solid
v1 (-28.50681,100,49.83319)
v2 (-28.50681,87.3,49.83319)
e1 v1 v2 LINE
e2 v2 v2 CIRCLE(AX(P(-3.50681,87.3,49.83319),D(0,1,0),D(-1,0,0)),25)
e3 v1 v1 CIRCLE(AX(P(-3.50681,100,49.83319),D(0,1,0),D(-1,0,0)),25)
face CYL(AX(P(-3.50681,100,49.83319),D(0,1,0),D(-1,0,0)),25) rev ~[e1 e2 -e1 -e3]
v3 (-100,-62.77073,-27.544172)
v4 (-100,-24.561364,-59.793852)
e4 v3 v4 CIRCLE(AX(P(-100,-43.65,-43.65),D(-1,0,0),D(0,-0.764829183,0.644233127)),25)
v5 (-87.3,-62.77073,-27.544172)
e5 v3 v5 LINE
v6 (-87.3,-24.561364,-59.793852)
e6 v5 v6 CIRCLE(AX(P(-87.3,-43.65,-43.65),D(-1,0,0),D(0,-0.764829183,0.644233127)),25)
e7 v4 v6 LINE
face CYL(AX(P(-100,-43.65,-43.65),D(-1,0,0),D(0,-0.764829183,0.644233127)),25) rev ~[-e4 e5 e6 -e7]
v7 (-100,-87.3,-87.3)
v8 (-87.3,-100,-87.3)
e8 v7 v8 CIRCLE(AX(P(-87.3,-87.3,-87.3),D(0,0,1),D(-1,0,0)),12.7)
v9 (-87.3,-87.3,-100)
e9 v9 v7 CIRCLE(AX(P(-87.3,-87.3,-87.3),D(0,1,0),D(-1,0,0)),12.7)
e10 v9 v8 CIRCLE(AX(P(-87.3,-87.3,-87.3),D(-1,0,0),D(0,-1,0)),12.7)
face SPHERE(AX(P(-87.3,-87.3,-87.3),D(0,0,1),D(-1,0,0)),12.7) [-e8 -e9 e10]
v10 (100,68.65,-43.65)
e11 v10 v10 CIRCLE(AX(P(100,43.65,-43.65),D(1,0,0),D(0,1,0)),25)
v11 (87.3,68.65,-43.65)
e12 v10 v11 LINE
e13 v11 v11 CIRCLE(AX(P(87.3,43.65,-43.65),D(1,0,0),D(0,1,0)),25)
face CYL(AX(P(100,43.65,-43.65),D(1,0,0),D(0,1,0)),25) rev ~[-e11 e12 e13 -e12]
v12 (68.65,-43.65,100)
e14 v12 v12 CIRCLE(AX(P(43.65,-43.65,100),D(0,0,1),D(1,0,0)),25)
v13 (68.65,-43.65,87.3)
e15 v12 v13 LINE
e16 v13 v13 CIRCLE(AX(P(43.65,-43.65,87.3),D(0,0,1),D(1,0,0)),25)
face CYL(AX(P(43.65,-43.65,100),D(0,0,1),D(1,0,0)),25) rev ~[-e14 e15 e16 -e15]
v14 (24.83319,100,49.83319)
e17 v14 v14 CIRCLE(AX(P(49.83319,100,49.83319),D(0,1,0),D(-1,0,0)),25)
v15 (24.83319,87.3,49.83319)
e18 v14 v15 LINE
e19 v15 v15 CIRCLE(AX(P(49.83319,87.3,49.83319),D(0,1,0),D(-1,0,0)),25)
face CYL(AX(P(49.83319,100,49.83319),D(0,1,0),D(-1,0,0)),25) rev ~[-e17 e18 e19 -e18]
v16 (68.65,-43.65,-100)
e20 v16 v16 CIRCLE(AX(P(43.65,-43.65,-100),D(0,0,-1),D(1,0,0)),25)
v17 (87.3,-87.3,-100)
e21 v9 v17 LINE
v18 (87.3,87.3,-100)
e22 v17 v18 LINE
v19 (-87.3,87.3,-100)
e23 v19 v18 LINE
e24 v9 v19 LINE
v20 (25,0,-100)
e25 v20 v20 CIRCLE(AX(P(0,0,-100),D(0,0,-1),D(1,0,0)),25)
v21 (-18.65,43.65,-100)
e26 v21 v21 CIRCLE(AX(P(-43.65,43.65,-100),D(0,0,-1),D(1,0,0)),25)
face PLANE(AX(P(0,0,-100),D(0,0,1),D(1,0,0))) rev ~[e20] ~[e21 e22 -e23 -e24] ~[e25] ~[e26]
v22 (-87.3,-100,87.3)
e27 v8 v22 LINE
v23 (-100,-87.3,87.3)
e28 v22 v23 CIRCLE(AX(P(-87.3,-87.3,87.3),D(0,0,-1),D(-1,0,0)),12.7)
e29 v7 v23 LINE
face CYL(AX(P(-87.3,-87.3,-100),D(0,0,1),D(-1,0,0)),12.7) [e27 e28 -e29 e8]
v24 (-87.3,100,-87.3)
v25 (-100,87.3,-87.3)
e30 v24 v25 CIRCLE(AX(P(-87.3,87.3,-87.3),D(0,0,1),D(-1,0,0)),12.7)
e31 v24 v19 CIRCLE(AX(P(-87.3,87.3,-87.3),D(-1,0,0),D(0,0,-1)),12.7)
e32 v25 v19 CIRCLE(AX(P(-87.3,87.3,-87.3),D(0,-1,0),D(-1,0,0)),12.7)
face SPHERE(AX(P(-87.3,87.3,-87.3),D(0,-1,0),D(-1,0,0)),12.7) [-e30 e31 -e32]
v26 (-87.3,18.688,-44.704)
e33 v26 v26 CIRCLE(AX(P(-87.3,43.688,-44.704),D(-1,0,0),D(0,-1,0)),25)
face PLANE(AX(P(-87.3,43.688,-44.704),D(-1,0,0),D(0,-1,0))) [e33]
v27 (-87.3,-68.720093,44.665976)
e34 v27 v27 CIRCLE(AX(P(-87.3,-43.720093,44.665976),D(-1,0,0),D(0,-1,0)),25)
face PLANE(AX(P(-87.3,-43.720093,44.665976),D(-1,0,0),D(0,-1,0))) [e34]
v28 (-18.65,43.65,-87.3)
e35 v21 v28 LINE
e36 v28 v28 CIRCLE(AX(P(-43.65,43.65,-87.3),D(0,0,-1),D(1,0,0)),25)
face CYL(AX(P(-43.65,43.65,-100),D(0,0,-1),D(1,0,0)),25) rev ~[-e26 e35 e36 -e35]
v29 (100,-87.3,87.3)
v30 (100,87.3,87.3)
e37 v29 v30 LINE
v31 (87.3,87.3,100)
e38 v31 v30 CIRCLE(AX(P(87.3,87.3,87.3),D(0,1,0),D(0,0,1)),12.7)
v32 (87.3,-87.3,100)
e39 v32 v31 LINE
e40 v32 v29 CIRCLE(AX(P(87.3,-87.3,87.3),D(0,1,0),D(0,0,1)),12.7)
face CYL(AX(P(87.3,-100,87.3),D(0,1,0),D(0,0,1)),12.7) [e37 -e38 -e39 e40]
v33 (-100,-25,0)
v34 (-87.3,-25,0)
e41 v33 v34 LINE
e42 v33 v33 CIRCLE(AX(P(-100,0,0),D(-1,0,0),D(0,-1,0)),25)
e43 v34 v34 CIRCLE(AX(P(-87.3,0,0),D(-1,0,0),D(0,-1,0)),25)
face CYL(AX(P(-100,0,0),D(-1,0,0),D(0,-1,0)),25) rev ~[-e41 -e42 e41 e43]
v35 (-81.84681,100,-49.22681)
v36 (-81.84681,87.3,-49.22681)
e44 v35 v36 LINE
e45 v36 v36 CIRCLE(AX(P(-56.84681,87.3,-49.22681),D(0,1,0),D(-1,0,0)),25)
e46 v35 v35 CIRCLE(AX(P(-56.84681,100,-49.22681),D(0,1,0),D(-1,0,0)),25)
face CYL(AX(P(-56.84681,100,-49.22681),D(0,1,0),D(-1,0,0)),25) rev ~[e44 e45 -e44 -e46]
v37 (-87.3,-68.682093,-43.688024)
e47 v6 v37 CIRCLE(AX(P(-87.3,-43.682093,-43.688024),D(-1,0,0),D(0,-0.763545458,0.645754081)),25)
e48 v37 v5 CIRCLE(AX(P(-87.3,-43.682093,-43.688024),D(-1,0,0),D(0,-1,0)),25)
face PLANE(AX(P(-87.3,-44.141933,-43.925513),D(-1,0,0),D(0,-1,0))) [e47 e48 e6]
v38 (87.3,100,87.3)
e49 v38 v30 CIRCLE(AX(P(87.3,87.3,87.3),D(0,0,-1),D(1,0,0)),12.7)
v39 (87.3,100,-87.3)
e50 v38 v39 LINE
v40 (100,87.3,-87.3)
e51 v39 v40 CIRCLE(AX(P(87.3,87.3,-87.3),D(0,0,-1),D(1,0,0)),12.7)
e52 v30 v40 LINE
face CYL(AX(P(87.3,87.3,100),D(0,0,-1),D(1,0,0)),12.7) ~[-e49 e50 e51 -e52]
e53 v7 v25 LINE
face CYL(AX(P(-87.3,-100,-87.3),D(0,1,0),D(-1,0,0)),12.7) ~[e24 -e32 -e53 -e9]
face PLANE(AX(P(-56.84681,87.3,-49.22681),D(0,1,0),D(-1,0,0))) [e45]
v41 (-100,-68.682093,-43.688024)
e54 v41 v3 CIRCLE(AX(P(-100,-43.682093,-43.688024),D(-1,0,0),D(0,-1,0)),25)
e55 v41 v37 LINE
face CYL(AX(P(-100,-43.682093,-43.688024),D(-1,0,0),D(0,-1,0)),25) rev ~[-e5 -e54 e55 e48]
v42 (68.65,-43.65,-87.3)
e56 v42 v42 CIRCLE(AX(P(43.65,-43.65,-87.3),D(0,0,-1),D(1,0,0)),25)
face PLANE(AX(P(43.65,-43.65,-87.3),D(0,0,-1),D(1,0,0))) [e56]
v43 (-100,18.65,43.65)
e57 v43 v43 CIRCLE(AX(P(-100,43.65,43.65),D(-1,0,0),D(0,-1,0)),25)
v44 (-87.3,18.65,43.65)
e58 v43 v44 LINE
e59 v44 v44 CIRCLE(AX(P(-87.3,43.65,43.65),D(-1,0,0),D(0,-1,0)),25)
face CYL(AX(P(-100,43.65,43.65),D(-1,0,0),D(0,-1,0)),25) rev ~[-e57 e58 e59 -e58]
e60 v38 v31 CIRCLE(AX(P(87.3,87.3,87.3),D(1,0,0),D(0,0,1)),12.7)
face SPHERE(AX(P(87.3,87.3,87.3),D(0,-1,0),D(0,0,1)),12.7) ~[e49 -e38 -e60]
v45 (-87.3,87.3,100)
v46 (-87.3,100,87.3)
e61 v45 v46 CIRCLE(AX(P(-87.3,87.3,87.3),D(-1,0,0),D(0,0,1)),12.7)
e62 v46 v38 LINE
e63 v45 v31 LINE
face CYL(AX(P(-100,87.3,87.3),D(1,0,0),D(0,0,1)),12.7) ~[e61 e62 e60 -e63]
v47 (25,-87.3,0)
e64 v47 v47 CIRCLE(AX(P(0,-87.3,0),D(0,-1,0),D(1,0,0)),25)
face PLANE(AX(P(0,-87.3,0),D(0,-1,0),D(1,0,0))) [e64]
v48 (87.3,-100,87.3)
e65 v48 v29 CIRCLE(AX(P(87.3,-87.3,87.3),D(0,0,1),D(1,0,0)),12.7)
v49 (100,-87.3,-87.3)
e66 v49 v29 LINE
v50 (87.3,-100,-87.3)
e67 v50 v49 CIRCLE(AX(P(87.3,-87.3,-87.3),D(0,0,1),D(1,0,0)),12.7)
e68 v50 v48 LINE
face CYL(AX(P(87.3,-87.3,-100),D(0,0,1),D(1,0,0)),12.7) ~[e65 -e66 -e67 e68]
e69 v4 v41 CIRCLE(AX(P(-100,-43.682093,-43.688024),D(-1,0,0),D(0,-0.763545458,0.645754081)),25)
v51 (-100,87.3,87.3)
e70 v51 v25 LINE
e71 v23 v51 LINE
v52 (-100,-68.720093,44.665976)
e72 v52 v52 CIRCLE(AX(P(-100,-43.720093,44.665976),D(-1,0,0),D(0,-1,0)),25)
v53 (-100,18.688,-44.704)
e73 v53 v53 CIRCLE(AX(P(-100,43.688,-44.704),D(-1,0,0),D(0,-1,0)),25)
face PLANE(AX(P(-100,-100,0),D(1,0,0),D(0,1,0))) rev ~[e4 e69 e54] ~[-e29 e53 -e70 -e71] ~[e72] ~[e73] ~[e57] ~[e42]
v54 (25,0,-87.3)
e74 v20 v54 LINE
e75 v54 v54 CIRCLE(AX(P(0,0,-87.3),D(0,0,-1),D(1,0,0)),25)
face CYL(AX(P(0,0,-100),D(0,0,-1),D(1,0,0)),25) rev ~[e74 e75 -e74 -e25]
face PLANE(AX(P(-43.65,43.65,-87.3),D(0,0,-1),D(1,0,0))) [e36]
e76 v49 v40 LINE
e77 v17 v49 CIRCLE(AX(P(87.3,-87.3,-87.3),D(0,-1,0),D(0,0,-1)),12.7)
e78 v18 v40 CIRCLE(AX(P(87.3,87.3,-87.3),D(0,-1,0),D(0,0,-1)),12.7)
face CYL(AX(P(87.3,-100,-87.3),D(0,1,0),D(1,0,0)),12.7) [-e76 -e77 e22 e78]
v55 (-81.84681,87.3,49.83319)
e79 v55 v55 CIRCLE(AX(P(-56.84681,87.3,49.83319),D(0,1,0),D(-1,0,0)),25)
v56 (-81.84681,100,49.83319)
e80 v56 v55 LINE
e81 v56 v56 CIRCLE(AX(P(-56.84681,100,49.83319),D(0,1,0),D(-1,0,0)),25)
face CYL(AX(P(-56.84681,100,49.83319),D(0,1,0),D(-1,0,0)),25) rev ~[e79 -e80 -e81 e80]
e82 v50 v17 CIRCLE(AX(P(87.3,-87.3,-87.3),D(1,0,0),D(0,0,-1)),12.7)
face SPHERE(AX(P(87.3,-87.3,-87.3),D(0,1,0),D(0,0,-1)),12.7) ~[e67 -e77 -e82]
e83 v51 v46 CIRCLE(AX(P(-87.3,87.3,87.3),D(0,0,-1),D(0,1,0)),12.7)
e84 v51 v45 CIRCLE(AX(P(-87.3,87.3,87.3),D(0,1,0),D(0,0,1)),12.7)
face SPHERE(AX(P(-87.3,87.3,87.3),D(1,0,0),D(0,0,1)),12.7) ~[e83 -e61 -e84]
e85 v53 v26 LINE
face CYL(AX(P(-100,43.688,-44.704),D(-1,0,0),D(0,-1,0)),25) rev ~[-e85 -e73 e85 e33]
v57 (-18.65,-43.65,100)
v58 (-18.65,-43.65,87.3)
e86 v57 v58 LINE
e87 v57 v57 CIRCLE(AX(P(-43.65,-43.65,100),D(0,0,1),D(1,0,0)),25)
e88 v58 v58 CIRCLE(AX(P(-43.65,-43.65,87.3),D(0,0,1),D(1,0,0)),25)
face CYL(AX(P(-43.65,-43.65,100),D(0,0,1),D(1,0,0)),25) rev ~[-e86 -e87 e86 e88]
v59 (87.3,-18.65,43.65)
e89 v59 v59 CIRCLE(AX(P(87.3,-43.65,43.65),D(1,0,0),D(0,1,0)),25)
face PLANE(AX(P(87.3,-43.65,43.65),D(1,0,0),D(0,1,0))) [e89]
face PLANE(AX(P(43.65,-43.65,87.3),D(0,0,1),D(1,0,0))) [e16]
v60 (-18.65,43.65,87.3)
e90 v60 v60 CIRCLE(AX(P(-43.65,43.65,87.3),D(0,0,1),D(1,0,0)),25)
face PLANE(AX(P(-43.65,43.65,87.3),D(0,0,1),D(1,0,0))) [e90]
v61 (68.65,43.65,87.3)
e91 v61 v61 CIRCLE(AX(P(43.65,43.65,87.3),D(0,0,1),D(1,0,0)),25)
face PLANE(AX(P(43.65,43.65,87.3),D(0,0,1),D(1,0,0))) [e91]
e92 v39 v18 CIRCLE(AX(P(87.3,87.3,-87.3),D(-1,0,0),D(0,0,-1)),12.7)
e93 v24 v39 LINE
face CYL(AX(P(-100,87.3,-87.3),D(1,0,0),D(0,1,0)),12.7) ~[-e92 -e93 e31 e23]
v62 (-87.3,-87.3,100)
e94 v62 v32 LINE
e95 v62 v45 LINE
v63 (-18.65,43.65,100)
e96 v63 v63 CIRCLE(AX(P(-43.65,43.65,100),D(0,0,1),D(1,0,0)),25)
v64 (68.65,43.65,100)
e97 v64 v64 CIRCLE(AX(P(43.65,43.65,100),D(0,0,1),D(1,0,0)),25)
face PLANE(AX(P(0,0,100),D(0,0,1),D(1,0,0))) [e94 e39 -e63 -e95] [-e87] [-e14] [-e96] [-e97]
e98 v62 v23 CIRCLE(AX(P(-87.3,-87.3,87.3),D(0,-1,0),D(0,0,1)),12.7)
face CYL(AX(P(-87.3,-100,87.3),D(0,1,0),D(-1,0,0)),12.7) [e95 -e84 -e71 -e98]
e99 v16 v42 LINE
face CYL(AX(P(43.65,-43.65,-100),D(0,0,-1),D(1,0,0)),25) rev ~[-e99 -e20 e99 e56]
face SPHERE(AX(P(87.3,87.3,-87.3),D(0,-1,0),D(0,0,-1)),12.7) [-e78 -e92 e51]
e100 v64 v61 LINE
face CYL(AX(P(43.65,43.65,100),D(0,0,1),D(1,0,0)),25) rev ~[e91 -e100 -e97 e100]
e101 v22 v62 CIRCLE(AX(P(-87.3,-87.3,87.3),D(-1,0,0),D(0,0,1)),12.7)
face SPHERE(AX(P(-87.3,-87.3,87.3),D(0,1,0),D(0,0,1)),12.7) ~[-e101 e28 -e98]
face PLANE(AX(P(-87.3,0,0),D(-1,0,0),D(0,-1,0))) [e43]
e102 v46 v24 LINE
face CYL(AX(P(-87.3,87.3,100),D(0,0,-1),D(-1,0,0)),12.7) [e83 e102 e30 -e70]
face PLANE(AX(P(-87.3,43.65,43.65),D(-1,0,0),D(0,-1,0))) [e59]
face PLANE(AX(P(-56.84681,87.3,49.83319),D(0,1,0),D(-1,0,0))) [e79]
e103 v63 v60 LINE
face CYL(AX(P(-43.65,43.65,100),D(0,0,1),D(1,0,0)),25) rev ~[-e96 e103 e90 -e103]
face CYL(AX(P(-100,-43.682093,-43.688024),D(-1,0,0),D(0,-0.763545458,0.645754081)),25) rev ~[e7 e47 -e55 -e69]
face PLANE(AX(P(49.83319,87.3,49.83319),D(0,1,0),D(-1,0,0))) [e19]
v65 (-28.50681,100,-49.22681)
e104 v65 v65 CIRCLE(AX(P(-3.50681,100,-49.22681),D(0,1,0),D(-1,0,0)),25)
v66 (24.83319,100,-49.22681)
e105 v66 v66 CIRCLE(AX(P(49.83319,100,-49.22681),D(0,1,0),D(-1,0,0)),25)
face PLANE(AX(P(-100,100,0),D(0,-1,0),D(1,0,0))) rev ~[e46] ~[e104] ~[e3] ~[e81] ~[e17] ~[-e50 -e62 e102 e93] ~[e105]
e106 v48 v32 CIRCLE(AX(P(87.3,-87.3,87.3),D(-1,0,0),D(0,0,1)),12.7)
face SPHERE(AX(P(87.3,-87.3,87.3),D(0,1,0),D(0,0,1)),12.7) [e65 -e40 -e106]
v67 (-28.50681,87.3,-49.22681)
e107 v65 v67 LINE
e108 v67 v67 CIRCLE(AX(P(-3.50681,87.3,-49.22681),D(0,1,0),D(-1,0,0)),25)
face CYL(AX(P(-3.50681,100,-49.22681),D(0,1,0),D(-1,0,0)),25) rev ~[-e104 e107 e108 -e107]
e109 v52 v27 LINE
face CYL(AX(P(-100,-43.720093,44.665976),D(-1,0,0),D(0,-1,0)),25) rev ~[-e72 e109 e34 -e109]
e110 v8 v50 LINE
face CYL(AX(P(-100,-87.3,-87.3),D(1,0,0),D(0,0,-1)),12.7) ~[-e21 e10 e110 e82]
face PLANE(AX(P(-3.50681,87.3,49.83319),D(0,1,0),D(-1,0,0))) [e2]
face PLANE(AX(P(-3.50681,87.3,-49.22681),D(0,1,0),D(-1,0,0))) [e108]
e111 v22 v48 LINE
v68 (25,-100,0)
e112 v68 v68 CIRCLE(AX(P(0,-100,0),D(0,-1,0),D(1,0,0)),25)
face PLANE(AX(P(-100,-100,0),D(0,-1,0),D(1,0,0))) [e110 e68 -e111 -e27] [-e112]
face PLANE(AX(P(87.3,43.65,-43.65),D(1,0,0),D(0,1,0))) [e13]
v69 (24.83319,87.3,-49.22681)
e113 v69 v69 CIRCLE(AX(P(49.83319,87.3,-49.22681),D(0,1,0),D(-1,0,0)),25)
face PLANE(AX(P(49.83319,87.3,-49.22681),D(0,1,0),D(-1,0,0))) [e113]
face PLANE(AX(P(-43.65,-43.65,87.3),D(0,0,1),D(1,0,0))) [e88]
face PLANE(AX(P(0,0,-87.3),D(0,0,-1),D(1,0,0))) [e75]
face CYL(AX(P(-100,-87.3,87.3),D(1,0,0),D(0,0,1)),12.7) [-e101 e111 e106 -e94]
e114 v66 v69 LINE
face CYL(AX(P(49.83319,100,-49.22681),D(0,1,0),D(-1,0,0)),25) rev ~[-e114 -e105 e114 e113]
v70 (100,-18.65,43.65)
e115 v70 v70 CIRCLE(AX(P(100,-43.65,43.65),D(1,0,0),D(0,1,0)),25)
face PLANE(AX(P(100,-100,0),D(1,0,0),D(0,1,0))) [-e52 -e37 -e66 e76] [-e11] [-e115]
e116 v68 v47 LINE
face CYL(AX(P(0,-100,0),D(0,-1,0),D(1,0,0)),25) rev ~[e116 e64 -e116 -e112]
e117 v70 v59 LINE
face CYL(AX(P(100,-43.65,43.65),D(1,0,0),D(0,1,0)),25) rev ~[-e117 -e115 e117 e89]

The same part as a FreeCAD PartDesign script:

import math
import FreeCAD as App
import Part
import Sketcher
from FreeCAD import Vector
Q = App.Units.Quantity


def add_polygon(sketch, points):
    """Adds a closed chain of lines whose ends are joined by coincident constraints."""
    first, n = sketch.GeometryCount, len(points)
    for a, b in zip(points, points[1:] + points[:1]):
        sketch.addGeometry(Part.LineSegment(App.Vector(*a, 0), App.Vector(*b, 0)), False)
    for i in range(n):
        sketch.addConstraint(Sketcher.Constraint("Coincident", first + i, 2, first + (i + 1) % n, 1))

doc = App.newDocument("Part")
body = doc.addObject("PartDesign::Body", "Body")

# Sketch on XY plane
sketch1 = body.newObject("Sketcher::SketchObject", "Sketch")
sketch1.AttachmentSupport = (doc.getObject("XY_Plane"), [""])
sketch1.MapMode = "FlatFace"
add_polygon(sketch1, [(-100, 100), (-100, -100), (100, -100), (100, 100)])  # lines 0-3
sketch1.addConstraint([
    Sketcher.Constraint("Vertical", 0),
    Sketcher.Constraint("Horizontal", 1),
    Sketcher.Constraint("Vertical", 2),
    Sketcher.Constraint("Horizontal", 3),
    Sketcher.Constraint("Symmetric", 0, 2, 2, 2, -1, 1),
    Sketcher.Constraint("Equal", 3, 0),
    Sketcher.Constraint("DistanceX", 1, 1, 1, 2, Q("200 mm")),
])
pad1 = body.newObject("PartDesign::Pad", "Pad")
pad1.Profile = sketch1
pad1.Type = "TwoLengths"
pad1.Length = 100
pad1.Length2 = 100
doc.recompute()

fillet = body.newObject("PartDesign::Fillet", "Fillet")
fillet.Base = (pad1, ["Edge1"])
fillet.UseAllEdges = True
fillet.Radius = 12.7

# Sketch on XZ plane
sketch2 = body.newObject("Sketcher::SketchObject", "Sketch001")
sketch2.AttachmentSupport = (doc.getObject("XZ_Plane"), [""])
sketch2.MapMode = "FlatFace"
sketch2.AttachmentOffset = App.Placement(Vector(0, 0, 100), App.Rotation())
sketch2.addGeometry(Part.Circle(Vector(0, 0, 0), Vector(0, 0, 1), 25), False)
sketch2.addConstraint([
    Sketcher.Constraint("Coincident", 0, 3, -1, 1),
    Sketcher.Constraint("Diameter", 0, Q("50 mm")),
])
pocket1 = body.newObject("PartDesign::Pocket", "Pocket")
pocket1.Profile = sketch2
pocket1.Length = 12.7

# Sketch on XZ plane
sketch3 = body.newObject("Sketcher::SketchObject", "Sketch002")
sketch3.AttachmentSupport = (doc.getObject("XZ_Plane"), [""])
sketch3.MapMode = "FlatFace"
sketch3.AttachmentOffset = App.Placement(Vector(0, 0, -100), App.Rotation())
sketch3.addGeometry([
    Part.Circle(Vector(50, 50, 0), Vector(0, 0, 1), 25),  # 0
    Part.Circle(Vector(-4, 50, 0), Vector(0, 0, 1), 25),  # 1
    Part.Circle(Vector(-57, 50, 0), Vector(0, 0, 1), 25),  # 2
    Part.Circle(Vector(50, -49, 0), Vector(0, 0, 1), 25),  # 3
    Part.Circle(Vector(-4, -49, 0), Vector(0, 0, 1), 25),  # 4
    Part.Circle(Vector(-57, -49, 0), Vector(0, 0, 1), 25),  # 5
], False)
sketch3.addConstraint([
    Sketcher.Constraint("Equal", 0, 1),
    Sketcher.Constraint("Equal", 1, 2),
    Sketcher.Constraint("Equal", 2, 3),
    Sketcher.Constraint("Equal", 3, 4),
    Sketcher.Constraint("Equal", 4, 5),
    Sketcher.Constraint("Horizontal", 0, 3, 1, 3),
    Sketcher.Constraint("Horizontal", 1, 3, 2, 3),
    Sketcher.Constraint("Horizontal", 3, 3, 4, 3),
    Sketcher.Constraint("Horizontal", 4, 3, 5, 3),
    Sketcher.Constraint("Vertical", 0, 3, 3, 3),
    Sketcher.Constraint("Vertical", 1, 3, 4, 3),
    Sketcher.Constraint("Vertical", 2, 3, 5, 3),
    Sketcher.Constraint("Diameter", 0, Q("50 mm")),
    Sketcher.Constraint("DistanceX", 1, 3, 0, 3, Q("53.34 mm")),
    Sketcher.Constraint("DistanceX", 2, 3, 1, 3, Q("53.34 mm")),
    Sketcher.Constraint("DistanceY", 3, 3, 0, 3, Q("99.06 mm")),
    Sketcher.Constraint("DistanceX", -1, 1, 0, 3, Q("49.83319 mm")),
    Sketcher.Constraint("DistanceY", -1, 1, 0, 3, Q("49.83319 mm")),
])
pocket2 = body.newObject("PartDesign::Pocket", "Pocket001")
pocket2.Profile = sketch3
pocket2.Length = 12.7
pocket2.Reversed = True

# Sketch on YZ plane
sketch4 = body.newObject("Sketcher::SketchObject", "Sketch003")
sketch4.AttachmentSupport = (doc.getObject("YZ_Plane"), [""])
sketch4.MapMode = "FlatFace"
sketch4.AttachmentOffset = App.Placement(Vector(0, 0, -100), App.Rotation())
sketch4.addGeometry([
    Part.Circle(Vector(43.65, 43.65, 0), Vector(0, 0, 1), 25),  # 0
    Part.ArcOfCircle(Part.Circle(Vector(-43.682093, -43.688024, 0), Vector(0, 0, 1), 25), math.radians(180), math.radians(319.891798)),  # 1
    Part.ArcOfCircle(Part.Circle(Vector(-43.682093, -43.688024, 0), Vector(0, 0, 1), 25), math.radians(139.777763), math.radians(180)),  # 2
    Part.ArcOfCircle(Part.Circle(Vector(-43.65, -43.65, 0), Vector(0, 0, 1), 25), math.radians(-40.222237), math.radians(139.891798)),  # 3
    Part.Circle(Vector(43.688, -44.704, 0), Vector(0, 0, 1), 25),  # 4
    Part.Circle(Vector(-43.720093, 44.665976, 0), Vector(0, 0, 1), 25),  # 5
    Part.Circle(Vector(0, 0, 0), Vector(0, 0, 1), 25),  # 6
], False)
sketch4.addConstraint([
    Sketcher.Constraint("Tangent", 1, 1, 2, 2),
    Sketcher.Constraint("Coincident", 2, 1, 3, 2),
    Sketcher.Constraint("Coincident", 3, 1, 1, 2),
    Sketcher.Constraint("Coincident", 6, 3, -1, 1),
    Sketcher.Constraint("Equal", 0, 1),
    Sketcher.Constraint("Equal", 1, 2),
    Sketcher.Constraint("Equal", 2, 3),
    Sketcher.Constraint("Equal", 3, 4),
    Sketcher.Constraint("Equal", 4, 5),
    Sketcher.Constraint("Equal", 5, 6),
    Sketcher.Constraint("Symmetric", 0, 3, 3, 3, -1, 1),
    Sketcher.Constraint("Horizontal", 2, 3, 1, 1),
    Sketcher.Constraint("Diameter", 0, Q("50 mm")),
    Sketcher.Constraint("DistanceX", 3, 3, 0, 3, Q("87.3 mm")),
    Sketcher.Constraint("DistanceY", 3, 3, 0, 3, Q("87.3 mm")),
    Sketcher.Constraint("DistanceX", -1, 1, 4, 3, Q("43.688 mm")),
    Sketcher.Constraint("DistanceY", 4, 3, -1, 1, Q("44.704 mm")),
    Sketcher.Constraint("DistanceX", 5, 3, 1, 3, Q("0.038 mm")),
    Sketcher.Constraint("DistanceY", 1, 3, 5, 3, Q("88.354 mm")),
    Sketcher.Constraint("DistanceX", 2, 1, -1, 1, Q("62.77073 mm")),
    Sketcher.Constraint("DistanceY", 3, 1, 2, 1, Q("32.24968 mm")),
])
pocket3 = body.newObject("PartDesign::Pocket", "Pocket002")
pocket3.Profile = sketch4
pocket3.Length = 12.7
pocket3.Reversed = True

# Sketch on XY plane
sketch5 = body.newObject("Sketcher::SketchObject", "Sketch004")
sketch5.AttachmentSupport = (doc.getObject("XY_Plane"), [""])
sketch5.MapMode = "FlatFace"
sketch5.AttachmentOffset = App.Placement(Vector(0, 0, -100), App.Rotation())
sketch5.addGeometry([
    Part.Circle(Vector(44, -44, 0), Vector(0, 0, 1), 25),
    Part.Circle(Vector(0, 0, 0), Vector(0, 0, 1), 25),
    Part.Circle(Vector(-44, 44, 0), Vector(0, 0, 1), 25),
], False)
sketch5.addConstraint([
    Sketcher.Constraint("Coincident", 1, 3, -1, 1),
    Sketcher.Constraint("Equal", 0, 1),
    Sketcher.Constraint("Equal", 1, 2),
    Sketcher.Constraint("Symmetric", 0, 3, 2, 3, -1, 1),
    Sketcher.Constraint("Diameter", 0, Q("50 mm")),
    Sketcher.Constraint("DistanceX", 2, 3, 0, 3, Q("87.3 mm")),
    Sketcher.Constraint("DistanceY", 0, 3, 2, 3, Q("87.3 mm")),
])
pocket4 = body.newObject("PartDesign::Pocket", "Pocket003")
pocket4.Profile = sketch5
pocket4.Length = 12.7
pocket4.Reversed = True

# Sketch on XY plane
sketch6 = body.newObject("Sketcher::SketchObject", "Sketch005")
sketch6.AttachmentSupport = (doc.getObject("XY_Plane"), [""])
sketch6.MapMode = "FlatFace"
sketch6.AttachmentOffset = App.Placement(Vector(0, 0, 100), App.Rotation())
sketch6.addGeometry([
    Part.Circle(Vector(-44, 44, 0), Vector(0, 0, 1), 25),
    Part.Circle(Vector(44, 44, 0), Vector(0, 0, 1), 25),
    Part.Circle(Vector(44, -44, 0), Vector(0, 0, 1), 25),
    Part.Circle(Vector(-44, -44, 0), Vector(0, 0, 1), 25),
], False)
sketch6.addConstraint([
    Sketcher.Constraint("Equal", 0, 1),
    Sketcher.Constraint("Equal", 1, 2),
    Sketcher.Constraint("Equal", 2, 3),
    Sketcher.Constraint("Symmetric", 0, 3, 2, 3, -1, 1),
    Sketcher.Constraint("Symmetric", 1, 3, 3, 3, -1, 1),
    Sketcher.Constraint("Symmetric", 0, 3, 1, 3, -2),
    Sketcher.Constraint("Diameter", 0, Q("50 mm")),
    Sketcher.Constraint("DistanceX", 0, 3, 1, 3, Q("87.3 mm")),
    Sketcher.Constraint("DistanceY", 2, 3, 1, 3, Q("87.3 mm")),
])
pocket5 = body.newObject("PartDesign::Pocket", "Pocket004")
pocket5.Profile = sketch6
pocket5.Length = 12.7

# Sketch on YZ plane
sketch7 = body.newObject("Sketcher::SketchObject", "Sketch006")
sketch7.AttachmentSupport = (doc.getObject("YZ_Plane"), [""])
sketch7.MapMode = "FlatFace"
sketch7.AttachmentOffset = App.Placement(Vector(0, 0, 100), App.Rotation())
sketch7.addGeometry([
    Part.Circle(Vector(-44, 44, 0), Vector(0, 0, 1), 25),
    Part.Circle(Vector(44, -44, 0), Vector(0, 0, 1), 25),
], False)
sketch7.addConstraint([
    Sketcher.Constraint("Equal", 0, 1),
    Sketcher.Constraint("Symmetric", 0, 3, 1, 3, -1, 1),
    Sketcher.Constraint("Diameter", 0, Q("50 mm")),
    Sketcher.Constraint("DistanceX", 0, 3, 1, 3, Q("87.3 mm")),
    Sketcher.Constraint("DistanceY", 1, 3, 0, 3, Q("87.3 mm")),
])
pocket6 = body.newObject("PartDesign::Pocket", "Pocket005")
pocket6.Profile = sketch7
pocket6.Length = 12.7

doc.recompute()
